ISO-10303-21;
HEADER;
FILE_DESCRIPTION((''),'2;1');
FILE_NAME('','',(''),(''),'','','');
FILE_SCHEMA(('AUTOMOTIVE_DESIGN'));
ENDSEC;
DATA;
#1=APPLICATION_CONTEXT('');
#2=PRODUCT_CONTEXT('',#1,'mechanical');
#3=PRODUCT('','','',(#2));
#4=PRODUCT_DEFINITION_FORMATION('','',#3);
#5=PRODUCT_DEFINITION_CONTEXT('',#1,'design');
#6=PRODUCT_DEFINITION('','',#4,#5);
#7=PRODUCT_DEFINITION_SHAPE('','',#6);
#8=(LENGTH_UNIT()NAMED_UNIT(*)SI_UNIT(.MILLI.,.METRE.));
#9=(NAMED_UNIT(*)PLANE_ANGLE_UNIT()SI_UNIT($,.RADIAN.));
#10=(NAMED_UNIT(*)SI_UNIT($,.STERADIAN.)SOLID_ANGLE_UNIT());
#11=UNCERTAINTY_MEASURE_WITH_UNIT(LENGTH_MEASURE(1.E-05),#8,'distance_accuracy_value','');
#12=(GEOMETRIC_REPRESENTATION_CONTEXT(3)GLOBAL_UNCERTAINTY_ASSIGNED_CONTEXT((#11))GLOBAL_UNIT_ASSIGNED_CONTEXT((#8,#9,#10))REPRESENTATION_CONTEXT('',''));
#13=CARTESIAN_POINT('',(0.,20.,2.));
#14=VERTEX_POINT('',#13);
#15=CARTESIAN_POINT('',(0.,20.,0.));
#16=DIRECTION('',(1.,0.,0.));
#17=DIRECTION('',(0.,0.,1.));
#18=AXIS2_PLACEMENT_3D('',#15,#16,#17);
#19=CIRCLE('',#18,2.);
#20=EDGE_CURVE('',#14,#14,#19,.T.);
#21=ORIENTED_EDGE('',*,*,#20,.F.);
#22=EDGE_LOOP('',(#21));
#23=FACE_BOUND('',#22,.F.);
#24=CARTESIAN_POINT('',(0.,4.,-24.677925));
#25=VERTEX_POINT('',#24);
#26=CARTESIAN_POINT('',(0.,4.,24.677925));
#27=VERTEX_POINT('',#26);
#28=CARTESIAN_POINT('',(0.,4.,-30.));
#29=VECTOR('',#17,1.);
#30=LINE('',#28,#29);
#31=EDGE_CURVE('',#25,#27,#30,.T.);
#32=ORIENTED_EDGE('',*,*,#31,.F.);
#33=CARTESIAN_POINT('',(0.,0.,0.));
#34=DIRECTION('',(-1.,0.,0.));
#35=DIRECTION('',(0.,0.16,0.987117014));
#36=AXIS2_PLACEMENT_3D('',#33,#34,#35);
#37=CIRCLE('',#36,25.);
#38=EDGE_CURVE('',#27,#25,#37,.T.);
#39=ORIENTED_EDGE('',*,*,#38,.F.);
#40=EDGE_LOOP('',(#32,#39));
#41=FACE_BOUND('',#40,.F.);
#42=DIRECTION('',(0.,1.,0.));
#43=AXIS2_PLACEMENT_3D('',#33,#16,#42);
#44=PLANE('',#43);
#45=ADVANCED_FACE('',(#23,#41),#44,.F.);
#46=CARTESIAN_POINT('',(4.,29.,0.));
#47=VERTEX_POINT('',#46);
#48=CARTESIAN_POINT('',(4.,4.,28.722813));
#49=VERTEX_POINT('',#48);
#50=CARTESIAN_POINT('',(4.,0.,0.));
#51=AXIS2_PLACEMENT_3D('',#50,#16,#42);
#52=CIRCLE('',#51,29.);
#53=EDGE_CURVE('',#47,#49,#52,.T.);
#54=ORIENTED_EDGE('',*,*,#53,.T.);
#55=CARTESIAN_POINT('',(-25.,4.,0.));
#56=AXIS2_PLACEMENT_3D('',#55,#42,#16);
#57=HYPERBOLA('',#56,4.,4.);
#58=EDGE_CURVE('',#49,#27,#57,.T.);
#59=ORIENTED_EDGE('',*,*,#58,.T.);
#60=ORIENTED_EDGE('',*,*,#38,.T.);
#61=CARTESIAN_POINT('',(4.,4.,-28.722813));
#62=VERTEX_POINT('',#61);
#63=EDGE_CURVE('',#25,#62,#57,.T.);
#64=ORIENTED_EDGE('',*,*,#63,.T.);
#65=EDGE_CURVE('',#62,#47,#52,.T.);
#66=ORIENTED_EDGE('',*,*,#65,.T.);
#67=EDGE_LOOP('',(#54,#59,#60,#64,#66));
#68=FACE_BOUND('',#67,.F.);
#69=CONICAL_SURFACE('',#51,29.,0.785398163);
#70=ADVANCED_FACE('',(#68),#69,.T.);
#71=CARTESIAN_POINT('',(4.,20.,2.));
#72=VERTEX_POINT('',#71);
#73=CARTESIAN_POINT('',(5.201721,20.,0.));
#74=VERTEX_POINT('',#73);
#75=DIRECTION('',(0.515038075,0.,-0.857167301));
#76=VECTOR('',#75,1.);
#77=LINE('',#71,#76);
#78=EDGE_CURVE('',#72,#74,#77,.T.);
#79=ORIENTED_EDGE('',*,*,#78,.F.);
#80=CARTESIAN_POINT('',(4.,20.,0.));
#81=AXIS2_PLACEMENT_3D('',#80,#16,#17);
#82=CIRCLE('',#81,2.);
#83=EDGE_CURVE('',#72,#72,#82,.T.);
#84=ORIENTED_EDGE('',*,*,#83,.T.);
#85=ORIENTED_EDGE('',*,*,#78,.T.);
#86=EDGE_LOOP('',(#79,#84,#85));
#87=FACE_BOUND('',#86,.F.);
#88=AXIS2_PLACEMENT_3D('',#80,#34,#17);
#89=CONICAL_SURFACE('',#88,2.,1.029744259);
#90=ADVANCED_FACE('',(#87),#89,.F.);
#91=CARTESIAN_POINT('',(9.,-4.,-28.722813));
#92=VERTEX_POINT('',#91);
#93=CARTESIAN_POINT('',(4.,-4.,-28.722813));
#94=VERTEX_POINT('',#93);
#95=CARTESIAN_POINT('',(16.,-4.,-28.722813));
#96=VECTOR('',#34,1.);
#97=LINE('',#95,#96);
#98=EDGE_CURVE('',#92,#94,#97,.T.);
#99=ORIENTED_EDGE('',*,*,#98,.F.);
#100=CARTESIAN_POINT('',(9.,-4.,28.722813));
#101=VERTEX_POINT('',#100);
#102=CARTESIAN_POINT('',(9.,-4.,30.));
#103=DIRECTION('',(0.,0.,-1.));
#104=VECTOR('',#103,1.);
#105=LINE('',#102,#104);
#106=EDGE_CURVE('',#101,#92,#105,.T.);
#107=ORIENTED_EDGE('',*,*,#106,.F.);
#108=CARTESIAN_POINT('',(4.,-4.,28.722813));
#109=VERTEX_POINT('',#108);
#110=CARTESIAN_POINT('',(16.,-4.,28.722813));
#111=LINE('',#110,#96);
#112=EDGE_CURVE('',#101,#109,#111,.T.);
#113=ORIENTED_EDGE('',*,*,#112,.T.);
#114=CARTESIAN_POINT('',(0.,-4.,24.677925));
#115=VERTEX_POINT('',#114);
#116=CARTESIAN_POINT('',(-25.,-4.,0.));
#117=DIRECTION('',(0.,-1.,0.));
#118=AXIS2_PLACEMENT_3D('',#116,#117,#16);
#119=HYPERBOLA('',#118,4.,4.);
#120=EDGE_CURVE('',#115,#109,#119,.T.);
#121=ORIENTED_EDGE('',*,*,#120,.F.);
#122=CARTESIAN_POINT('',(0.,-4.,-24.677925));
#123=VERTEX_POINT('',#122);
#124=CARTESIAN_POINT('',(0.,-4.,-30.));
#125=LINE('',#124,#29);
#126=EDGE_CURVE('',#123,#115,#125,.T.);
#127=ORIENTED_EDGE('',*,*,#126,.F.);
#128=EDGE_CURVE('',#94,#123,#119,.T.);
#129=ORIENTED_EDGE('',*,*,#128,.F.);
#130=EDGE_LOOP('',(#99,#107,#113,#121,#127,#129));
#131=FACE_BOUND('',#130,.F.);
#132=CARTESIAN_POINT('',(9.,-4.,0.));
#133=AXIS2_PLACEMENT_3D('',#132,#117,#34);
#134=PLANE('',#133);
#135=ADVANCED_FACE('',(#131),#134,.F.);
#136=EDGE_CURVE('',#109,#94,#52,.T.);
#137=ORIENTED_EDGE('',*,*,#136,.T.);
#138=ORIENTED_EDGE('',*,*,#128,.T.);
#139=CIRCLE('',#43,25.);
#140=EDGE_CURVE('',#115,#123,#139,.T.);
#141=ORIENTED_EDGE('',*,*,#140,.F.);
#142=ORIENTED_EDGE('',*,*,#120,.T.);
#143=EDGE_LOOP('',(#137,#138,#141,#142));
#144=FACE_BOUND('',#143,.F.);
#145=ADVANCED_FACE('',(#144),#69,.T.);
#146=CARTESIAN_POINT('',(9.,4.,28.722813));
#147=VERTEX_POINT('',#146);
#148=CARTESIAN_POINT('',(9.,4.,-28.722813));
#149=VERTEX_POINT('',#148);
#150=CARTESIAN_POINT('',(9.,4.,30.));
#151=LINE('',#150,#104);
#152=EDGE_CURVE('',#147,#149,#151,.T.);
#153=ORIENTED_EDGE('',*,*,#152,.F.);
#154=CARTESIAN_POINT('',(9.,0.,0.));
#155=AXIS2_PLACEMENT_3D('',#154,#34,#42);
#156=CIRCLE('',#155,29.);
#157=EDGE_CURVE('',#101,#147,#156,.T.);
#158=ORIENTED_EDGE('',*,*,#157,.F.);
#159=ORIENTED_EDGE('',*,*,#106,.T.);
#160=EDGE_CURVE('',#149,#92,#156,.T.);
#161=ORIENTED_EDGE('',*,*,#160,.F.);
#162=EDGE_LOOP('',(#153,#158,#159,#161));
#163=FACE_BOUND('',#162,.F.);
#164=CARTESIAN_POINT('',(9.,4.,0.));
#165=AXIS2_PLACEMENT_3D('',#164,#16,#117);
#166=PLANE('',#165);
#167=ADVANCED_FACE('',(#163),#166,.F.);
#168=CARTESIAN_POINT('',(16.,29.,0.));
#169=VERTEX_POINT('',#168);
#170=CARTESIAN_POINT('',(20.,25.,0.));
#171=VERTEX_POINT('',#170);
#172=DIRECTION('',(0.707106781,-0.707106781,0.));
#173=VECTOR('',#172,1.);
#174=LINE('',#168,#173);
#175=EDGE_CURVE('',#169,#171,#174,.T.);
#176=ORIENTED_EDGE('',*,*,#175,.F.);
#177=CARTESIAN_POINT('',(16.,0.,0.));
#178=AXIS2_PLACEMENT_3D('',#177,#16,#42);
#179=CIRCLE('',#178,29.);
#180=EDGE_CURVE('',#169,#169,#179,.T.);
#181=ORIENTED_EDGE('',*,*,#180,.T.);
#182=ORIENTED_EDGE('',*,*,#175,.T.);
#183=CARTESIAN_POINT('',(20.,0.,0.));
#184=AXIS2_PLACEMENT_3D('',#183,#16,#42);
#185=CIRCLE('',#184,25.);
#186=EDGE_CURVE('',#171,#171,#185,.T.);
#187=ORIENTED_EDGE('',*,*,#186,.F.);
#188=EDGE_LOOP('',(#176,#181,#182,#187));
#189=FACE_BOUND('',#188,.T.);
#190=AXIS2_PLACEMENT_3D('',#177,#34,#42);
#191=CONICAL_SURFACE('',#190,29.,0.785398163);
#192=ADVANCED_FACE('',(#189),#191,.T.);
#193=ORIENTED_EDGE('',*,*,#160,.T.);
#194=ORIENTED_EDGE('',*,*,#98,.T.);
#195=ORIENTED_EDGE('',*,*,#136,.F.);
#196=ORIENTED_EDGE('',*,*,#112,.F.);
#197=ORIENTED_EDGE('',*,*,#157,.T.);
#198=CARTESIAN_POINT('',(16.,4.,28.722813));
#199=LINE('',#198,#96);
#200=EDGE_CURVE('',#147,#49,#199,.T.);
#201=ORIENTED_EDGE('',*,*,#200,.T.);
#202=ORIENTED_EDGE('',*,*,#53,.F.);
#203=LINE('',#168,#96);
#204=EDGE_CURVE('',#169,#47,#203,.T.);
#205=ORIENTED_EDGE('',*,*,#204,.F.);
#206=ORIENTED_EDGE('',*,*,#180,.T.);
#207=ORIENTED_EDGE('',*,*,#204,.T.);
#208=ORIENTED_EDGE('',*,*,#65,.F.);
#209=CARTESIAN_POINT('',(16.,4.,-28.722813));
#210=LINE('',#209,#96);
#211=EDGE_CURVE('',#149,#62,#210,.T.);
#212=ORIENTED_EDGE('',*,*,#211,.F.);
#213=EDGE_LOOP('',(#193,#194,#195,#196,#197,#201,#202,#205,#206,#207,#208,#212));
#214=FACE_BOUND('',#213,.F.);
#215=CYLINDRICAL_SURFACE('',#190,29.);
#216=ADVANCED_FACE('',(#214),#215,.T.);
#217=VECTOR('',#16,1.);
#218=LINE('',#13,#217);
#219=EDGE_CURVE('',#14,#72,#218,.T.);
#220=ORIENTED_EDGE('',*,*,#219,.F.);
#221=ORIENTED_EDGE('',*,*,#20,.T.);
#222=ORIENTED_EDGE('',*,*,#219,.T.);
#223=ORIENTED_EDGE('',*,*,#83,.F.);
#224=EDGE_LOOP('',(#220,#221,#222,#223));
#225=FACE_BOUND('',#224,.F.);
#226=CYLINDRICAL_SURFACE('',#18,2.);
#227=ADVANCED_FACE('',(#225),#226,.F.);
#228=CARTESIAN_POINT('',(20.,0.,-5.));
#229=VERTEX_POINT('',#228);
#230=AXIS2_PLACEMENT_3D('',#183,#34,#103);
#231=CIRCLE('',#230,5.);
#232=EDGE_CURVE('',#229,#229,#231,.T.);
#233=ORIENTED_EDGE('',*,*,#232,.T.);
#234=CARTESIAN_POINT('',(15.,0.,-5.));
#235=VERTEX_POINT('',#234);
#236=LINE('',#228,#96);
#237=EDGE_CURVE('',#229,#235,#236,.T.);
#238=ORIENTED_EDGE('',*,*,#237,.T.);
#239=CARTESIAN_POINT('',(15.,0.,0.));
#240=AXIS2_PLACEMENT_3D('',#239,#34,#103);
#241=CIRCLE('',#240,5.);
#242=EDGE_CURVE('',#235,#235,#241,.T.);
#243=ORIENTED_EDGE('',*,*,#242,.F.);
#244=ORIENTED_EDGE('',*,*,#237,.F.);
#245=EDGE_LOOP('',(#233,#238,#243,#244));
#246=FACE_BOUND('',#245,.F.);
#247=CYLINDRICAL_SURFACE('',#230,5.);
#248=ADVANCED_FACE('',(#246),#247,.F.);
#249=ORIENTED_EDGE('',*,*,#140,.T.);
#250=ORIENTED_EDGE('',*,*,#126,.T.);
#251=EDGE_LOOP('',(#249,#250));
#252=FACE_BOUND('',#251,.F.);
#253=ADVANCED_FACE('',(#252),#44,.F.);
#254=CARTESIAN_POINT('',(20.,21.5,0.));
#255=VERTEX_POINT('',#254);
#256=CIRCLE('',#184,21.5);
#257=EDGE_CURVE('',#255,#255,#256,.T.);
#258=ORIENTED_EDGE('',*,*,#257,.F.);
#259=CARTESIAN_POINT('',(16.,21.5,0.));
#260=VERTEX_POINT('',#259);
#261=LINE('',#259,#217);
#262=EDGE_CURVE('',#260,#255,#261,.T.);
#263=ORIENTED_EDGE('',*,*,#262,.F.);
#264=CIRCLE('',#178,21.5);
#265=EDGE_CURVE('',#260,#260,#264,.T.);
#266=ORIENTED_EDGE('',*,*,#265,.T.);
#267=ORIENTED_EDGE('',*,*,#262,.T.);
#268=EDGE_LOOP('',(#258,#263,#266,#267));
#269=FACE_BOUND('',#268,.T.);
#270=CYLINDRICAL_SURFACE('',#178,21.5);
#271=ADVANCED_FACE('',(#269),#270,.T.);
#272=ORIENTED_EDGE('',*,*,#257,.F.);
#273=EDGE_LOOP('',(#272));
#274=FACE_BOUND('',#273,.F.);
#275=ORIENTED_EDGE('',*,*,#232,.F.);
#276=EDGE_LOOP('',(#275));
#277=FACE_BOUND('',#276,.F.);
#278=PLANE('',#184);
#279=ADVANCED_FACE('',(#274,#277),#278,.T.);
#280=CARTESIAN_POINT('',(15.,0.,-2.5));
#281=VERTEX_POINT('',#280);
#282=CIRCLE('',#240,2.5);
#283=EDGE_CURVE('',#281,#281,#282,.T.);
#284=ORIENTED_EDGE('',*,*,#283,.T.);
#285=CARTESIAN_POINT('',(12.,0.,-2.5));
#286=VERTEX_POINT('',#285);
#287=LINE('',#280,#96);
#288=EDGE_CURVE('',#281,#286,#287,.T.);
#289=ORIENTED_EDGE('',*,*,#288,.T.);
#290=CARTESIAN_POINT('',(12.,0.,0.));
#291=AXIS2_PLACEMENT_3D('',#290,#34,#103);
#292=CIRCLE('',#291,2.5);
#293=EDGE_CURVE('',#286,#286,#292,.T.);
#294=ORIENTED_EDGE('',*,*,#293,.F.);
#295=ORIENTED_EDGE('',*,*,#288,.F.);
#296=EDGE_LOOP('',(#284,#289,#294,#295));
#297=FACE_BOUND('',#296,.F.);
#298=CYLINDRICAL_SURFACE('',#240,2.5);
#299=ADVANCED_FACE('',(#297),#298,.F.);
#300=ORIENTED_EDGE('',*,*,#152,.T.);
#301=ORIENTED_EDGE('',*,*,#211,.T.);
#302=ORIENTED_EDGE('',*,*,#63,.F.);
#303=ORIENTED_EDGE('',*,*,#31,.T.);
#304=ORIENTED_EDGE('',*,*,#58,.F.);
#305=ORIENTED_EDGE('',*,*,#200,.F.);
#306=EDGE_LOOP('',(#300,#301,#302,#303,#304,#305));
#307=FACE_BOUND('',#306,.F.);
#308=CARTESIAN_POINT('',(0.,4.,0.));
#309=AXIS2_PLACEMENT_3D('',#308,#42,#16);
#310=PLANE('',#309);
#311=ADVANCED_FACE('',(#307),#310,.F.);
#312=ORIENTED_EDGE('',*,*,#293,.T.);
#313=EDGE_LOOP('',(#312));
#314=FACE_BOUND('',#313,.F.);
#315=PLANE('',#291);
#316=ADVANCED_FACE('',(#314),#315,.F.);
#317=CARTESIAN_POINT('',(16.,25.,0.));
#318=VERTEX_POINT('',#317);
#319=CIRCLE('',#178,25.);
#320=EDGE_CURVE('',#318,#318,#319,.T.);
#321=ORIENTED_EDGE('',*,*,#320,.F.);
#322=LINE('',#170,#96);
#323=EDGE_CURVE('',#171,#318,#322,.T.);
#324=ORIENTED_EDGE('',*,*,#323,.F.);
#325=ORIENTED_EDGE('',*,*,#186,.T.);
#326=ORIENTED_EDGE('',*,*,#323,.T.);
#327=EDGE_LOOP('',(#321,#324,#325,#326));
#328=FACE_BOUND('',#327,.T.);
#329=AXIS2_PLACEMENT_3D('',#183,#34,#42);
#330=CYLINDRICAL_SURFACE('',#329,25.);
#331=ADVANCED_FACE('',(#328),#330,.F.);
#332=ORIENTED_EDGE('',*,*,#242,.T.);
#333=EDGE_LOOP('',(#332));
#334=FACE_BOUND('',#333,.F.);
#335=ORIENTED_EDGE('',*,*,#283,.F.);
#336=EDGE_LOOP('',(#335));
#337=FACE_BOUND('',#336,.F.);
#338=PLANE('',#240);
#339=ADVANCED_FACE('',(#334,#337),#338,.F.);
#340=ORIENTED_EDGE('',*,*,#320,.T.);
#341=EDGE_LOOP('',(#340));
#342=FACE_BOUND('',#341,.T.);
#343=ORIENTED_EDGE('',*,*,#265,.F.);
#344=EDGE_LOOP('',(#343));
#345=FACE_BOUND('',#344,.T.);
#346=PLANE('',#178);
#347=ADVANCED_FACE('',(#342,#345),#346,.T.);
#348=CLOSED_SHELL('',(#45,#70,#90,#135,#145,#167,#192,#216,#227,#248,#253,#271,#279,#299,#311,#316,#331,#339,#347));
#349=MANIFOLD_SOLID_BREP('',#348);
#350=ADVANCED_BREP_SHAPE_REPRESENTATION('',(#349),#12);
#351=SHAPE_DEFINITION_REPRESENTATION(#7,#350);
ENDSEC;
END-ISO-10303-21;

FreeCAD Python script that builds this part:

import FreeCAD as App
import Part
import Sketcher
from FreeCAD import Vector


def add_polygon(sketch, points):
    """Adds a closed chain of lines whose ends are joined by coincident constraints."""
    first, n = sketch.GeometryCount, len(points)
    for a, b in zip(points, points[1:] + points[:1]):
        sketch.addGeometry(Part.LineSegment(App.Vector(*a, 0), App.Vector(*b, 0)), False)
    for i in range(n):
        sketch.addConstraint(Sketcher.Constraint("Coincident", first + i, 2, first + (i + 1) % n, 1))

doc = App.newDocument("Part")
body = doc.addObject("PartDesign::Body", "Body")

# Sketch on XY plane
sketch1 = doc.addObject("Sketcher::SketchObject", "Sketch")
body.addObject(sketch1)
sketch1.AttachmentSupport = (doc.XY_Plane, [""])
sketch1.MapMode = "FlatFace"
add_polygon(sketch1, [(0, 25), (0, 0), (20, 0), (20, 25), (16, 29), (4, 29)])  # lines 0-5
sketch1.addConstraint([
    Sketcher.Constraint("Vertical", 0),
    Sketcher.Constraint("Horizontal", 1),
    Sketcher.Constraint("Vertical", 2),
    Sketcher.Constraint("Horizontal", 4),
    Sketcher.Constraint("Coincident", 0, 2, -1, 1),
    Sketcher.Constraint("Perpendicular", 3, 5),
    Sketcher.Constraint("Horizontal", 2, 2, 5, 2),
    Sketcher.Constraint("Equal", 3, 5),
    Sketcher.Constraint("DistanceX", 1, 1, 1, 2, 20.0),
    Sketcher.Constraint("DistanceY", -1, 1, 3, 2, 29.0),
    Sketcher.Constraint("DistanceX", -1, 1, 4, 2, 4.0),
])
revolution = doc.addObject("PartDesign::Revolution", "Revolution")
body.addObject(revolution)
revolution.Profile = sketch1
revolution.ReferenceAxis = (sketch1, ["H_Axis"])
revolution.Angle = 360

# Sketch on YZ plane
sketch2 = doc.addObject("Sketcher::SketchObject", "Sketch001")
body.addObject(sketch2)
sketch2.AttachmentSupport = (doc.YZ_Plane, [""])
sketch2.MapMode = "FlatFace"
sketch2.AttachmentOffset = App.Placement(Vector(0, 0, 20), App.Rotation())
sketch2.addGeometry(Part.Circle(Vector(0, 0, 0), Vector(0, 0, 1), 5), False)
sketch2.addConstraint([
    Sketcher.Constraint("Coincident", 0, 3, -1, 1),
    Sketcher.Constraint("Diameter", 0, 10.0),
])
doc.recompute()
hole = doc.addObject("PartDesign::Hole", "Hole")
body.addObject(hole)
hole.Profile = sketch2
hole.ThreadType = "None"
hole.Diameter = 10
hole.DepthType = "Dimension"
hole.Depth = 5
hole.DrillPoint = "Flat"

# Sketch on YZ plane
sketch3 = doc.addObject("Sketcher::SketchObject", "Sketch002")
body.addObject(sketch3)
sketch3.AttachmentSupport = (doc.YZ_Plane, [""])
sketch3.MapMode = "FlatFace"
sketch3.AttachmentOffset = App.Placement(Vector(0, 0, 15), App.Rotation())
sketch3.addGeometry(Part.Circle(Vector(0, 0, 0), Vector(0, 0, 1), 2.5), False)
sketch3.addConstraint([
    Sketcher.Constraint("Coincident", 0, 3, -1, 1),
    Sketcher.Constraint("Diameter", 0, 5.0),
])
doc.recompute()
hole2 = doc.addObject("PartDesign::Hole", "Hole001")
body.addObject(hole2)
hole2.Profile = sketch3
hole2.ThreadType = "None"
hole2.Diameter = 5
hole2.DepthType = "Dimension"
hole2.Depth = 3
hole2.DrillPoint = "Flat"

# Sketch on XY plane
sketch4 = doc.addObject("Sketcher::SketchObject", "Sketch003")
body.addObject(sketch4)
sketch4.AttachmentSupport = (doc.XY_Plane, [""])
sketch4.MapMode = "FlatFace"
add_polygon(sketch4, [(20, 21.5), (20, 25), (16, 25), (16, 21.5)])  # lines 0-3
sketch4.addConstraint([
    Sketcher.Constraint("Vertical", 0),
    Sketcher.Constraint("Horizontal", 1),
    Sketcher.Constraint("Vertical", 2),
    Sketcher.Constraint("Horizontal", 3),
    Sketcher.Constraint("DistanceX", 1, 2, 1, 1, 4.0),
    Sketcher.Constraint("DistanceY", 0, 1, 0, 2, 3.5),
    Sketcher.Constraint("DistanceX", -1, 1, 0, 2, 20.0),
    Sketcher.Constraint("DistanceY", -1, 1, 0, 2, 25.0),
])
groove = doc.addObject("PartDesign::Groove", "Groove")
body.addObject(groove)
groove.Profile = sketch4
groove.ReferenceAxis = (sketch4, ["H_Axis"])
groove.Angle = 360

# Sketch on XY plane
sketch5 = doc.addObject("Sketcher::SketchObject", "Sketch004")
body.addObject(sketch5)
sketch5.AttachmentSupport = (doc.XY_Plane, [""])
sketch5.MapMode = "FlatFace"
add_polygon(sketch5, [(9, 4), (0, 4), (0, -4), (9, -4)])  # lines 0-3
sketch5.addConstraint([
    Sketcher.Constraint("Horizontal", 0),
    Sketcher.Constraint("Vertical", 1),
    Sketcher.Constraint("Horizontal", 2),
    Sketcher.Constraint("Vertical", 3),
    Sketcher.Constraint("Symmetric", 0, 2, 1, 2, -1, 1),
    Sketcher.Constraint("DistanceX", 0, 2, 0, 1, 9.0),
    Sketcher.Constraint("DistanceY", 1, 2, 1, 1, 8.0),
])
pocket1 = doc.addObject("PartDesign::Pocket", "Pocket")
body.addObject(pocket1)
pocket1.Profile = sketch5
pocket1.Type = "ThroughAll"
pocket1.Midplane = True

# Sketch on YZ plane
sketch6 = doc.addObject("Sketcher::SketchObject", "Sketch005")
body.addObject(sketch6)
sketch6.AttachmentSupport = (doc.YZ_Plane, [""])
sketch6.MapMode = "FlatFace"
sketch6.addGeometry(Part.Circle(Vector(20, 0, 0), Vector(0, 0, 1), 2), False)
sketch6.addConstraint([
    Sketcher.Constraint("PointOnObject", 0, 3, -1),
    Sketcher.Constraint("Diameter", 0, 4.0),
    Sketcher.Constraint("DistanceX", -1, 1, 0, 3, 20.0),
])
doc.recompute()
hole3 = doc.addObject("PartDesign::Hole", "Hole002")
body.addObject(hole3)
hole3.Profile = sketch6
hole3.ThreadType = "None"
hole3.Diameter = 4
hole3.DepthType = "Dimension"
hole3.Depth = 4
hole3.DrillPoint = "Angled"
hole3.DrillPointAngle = 118
hole3.Reversed = True

doc.recompute()
